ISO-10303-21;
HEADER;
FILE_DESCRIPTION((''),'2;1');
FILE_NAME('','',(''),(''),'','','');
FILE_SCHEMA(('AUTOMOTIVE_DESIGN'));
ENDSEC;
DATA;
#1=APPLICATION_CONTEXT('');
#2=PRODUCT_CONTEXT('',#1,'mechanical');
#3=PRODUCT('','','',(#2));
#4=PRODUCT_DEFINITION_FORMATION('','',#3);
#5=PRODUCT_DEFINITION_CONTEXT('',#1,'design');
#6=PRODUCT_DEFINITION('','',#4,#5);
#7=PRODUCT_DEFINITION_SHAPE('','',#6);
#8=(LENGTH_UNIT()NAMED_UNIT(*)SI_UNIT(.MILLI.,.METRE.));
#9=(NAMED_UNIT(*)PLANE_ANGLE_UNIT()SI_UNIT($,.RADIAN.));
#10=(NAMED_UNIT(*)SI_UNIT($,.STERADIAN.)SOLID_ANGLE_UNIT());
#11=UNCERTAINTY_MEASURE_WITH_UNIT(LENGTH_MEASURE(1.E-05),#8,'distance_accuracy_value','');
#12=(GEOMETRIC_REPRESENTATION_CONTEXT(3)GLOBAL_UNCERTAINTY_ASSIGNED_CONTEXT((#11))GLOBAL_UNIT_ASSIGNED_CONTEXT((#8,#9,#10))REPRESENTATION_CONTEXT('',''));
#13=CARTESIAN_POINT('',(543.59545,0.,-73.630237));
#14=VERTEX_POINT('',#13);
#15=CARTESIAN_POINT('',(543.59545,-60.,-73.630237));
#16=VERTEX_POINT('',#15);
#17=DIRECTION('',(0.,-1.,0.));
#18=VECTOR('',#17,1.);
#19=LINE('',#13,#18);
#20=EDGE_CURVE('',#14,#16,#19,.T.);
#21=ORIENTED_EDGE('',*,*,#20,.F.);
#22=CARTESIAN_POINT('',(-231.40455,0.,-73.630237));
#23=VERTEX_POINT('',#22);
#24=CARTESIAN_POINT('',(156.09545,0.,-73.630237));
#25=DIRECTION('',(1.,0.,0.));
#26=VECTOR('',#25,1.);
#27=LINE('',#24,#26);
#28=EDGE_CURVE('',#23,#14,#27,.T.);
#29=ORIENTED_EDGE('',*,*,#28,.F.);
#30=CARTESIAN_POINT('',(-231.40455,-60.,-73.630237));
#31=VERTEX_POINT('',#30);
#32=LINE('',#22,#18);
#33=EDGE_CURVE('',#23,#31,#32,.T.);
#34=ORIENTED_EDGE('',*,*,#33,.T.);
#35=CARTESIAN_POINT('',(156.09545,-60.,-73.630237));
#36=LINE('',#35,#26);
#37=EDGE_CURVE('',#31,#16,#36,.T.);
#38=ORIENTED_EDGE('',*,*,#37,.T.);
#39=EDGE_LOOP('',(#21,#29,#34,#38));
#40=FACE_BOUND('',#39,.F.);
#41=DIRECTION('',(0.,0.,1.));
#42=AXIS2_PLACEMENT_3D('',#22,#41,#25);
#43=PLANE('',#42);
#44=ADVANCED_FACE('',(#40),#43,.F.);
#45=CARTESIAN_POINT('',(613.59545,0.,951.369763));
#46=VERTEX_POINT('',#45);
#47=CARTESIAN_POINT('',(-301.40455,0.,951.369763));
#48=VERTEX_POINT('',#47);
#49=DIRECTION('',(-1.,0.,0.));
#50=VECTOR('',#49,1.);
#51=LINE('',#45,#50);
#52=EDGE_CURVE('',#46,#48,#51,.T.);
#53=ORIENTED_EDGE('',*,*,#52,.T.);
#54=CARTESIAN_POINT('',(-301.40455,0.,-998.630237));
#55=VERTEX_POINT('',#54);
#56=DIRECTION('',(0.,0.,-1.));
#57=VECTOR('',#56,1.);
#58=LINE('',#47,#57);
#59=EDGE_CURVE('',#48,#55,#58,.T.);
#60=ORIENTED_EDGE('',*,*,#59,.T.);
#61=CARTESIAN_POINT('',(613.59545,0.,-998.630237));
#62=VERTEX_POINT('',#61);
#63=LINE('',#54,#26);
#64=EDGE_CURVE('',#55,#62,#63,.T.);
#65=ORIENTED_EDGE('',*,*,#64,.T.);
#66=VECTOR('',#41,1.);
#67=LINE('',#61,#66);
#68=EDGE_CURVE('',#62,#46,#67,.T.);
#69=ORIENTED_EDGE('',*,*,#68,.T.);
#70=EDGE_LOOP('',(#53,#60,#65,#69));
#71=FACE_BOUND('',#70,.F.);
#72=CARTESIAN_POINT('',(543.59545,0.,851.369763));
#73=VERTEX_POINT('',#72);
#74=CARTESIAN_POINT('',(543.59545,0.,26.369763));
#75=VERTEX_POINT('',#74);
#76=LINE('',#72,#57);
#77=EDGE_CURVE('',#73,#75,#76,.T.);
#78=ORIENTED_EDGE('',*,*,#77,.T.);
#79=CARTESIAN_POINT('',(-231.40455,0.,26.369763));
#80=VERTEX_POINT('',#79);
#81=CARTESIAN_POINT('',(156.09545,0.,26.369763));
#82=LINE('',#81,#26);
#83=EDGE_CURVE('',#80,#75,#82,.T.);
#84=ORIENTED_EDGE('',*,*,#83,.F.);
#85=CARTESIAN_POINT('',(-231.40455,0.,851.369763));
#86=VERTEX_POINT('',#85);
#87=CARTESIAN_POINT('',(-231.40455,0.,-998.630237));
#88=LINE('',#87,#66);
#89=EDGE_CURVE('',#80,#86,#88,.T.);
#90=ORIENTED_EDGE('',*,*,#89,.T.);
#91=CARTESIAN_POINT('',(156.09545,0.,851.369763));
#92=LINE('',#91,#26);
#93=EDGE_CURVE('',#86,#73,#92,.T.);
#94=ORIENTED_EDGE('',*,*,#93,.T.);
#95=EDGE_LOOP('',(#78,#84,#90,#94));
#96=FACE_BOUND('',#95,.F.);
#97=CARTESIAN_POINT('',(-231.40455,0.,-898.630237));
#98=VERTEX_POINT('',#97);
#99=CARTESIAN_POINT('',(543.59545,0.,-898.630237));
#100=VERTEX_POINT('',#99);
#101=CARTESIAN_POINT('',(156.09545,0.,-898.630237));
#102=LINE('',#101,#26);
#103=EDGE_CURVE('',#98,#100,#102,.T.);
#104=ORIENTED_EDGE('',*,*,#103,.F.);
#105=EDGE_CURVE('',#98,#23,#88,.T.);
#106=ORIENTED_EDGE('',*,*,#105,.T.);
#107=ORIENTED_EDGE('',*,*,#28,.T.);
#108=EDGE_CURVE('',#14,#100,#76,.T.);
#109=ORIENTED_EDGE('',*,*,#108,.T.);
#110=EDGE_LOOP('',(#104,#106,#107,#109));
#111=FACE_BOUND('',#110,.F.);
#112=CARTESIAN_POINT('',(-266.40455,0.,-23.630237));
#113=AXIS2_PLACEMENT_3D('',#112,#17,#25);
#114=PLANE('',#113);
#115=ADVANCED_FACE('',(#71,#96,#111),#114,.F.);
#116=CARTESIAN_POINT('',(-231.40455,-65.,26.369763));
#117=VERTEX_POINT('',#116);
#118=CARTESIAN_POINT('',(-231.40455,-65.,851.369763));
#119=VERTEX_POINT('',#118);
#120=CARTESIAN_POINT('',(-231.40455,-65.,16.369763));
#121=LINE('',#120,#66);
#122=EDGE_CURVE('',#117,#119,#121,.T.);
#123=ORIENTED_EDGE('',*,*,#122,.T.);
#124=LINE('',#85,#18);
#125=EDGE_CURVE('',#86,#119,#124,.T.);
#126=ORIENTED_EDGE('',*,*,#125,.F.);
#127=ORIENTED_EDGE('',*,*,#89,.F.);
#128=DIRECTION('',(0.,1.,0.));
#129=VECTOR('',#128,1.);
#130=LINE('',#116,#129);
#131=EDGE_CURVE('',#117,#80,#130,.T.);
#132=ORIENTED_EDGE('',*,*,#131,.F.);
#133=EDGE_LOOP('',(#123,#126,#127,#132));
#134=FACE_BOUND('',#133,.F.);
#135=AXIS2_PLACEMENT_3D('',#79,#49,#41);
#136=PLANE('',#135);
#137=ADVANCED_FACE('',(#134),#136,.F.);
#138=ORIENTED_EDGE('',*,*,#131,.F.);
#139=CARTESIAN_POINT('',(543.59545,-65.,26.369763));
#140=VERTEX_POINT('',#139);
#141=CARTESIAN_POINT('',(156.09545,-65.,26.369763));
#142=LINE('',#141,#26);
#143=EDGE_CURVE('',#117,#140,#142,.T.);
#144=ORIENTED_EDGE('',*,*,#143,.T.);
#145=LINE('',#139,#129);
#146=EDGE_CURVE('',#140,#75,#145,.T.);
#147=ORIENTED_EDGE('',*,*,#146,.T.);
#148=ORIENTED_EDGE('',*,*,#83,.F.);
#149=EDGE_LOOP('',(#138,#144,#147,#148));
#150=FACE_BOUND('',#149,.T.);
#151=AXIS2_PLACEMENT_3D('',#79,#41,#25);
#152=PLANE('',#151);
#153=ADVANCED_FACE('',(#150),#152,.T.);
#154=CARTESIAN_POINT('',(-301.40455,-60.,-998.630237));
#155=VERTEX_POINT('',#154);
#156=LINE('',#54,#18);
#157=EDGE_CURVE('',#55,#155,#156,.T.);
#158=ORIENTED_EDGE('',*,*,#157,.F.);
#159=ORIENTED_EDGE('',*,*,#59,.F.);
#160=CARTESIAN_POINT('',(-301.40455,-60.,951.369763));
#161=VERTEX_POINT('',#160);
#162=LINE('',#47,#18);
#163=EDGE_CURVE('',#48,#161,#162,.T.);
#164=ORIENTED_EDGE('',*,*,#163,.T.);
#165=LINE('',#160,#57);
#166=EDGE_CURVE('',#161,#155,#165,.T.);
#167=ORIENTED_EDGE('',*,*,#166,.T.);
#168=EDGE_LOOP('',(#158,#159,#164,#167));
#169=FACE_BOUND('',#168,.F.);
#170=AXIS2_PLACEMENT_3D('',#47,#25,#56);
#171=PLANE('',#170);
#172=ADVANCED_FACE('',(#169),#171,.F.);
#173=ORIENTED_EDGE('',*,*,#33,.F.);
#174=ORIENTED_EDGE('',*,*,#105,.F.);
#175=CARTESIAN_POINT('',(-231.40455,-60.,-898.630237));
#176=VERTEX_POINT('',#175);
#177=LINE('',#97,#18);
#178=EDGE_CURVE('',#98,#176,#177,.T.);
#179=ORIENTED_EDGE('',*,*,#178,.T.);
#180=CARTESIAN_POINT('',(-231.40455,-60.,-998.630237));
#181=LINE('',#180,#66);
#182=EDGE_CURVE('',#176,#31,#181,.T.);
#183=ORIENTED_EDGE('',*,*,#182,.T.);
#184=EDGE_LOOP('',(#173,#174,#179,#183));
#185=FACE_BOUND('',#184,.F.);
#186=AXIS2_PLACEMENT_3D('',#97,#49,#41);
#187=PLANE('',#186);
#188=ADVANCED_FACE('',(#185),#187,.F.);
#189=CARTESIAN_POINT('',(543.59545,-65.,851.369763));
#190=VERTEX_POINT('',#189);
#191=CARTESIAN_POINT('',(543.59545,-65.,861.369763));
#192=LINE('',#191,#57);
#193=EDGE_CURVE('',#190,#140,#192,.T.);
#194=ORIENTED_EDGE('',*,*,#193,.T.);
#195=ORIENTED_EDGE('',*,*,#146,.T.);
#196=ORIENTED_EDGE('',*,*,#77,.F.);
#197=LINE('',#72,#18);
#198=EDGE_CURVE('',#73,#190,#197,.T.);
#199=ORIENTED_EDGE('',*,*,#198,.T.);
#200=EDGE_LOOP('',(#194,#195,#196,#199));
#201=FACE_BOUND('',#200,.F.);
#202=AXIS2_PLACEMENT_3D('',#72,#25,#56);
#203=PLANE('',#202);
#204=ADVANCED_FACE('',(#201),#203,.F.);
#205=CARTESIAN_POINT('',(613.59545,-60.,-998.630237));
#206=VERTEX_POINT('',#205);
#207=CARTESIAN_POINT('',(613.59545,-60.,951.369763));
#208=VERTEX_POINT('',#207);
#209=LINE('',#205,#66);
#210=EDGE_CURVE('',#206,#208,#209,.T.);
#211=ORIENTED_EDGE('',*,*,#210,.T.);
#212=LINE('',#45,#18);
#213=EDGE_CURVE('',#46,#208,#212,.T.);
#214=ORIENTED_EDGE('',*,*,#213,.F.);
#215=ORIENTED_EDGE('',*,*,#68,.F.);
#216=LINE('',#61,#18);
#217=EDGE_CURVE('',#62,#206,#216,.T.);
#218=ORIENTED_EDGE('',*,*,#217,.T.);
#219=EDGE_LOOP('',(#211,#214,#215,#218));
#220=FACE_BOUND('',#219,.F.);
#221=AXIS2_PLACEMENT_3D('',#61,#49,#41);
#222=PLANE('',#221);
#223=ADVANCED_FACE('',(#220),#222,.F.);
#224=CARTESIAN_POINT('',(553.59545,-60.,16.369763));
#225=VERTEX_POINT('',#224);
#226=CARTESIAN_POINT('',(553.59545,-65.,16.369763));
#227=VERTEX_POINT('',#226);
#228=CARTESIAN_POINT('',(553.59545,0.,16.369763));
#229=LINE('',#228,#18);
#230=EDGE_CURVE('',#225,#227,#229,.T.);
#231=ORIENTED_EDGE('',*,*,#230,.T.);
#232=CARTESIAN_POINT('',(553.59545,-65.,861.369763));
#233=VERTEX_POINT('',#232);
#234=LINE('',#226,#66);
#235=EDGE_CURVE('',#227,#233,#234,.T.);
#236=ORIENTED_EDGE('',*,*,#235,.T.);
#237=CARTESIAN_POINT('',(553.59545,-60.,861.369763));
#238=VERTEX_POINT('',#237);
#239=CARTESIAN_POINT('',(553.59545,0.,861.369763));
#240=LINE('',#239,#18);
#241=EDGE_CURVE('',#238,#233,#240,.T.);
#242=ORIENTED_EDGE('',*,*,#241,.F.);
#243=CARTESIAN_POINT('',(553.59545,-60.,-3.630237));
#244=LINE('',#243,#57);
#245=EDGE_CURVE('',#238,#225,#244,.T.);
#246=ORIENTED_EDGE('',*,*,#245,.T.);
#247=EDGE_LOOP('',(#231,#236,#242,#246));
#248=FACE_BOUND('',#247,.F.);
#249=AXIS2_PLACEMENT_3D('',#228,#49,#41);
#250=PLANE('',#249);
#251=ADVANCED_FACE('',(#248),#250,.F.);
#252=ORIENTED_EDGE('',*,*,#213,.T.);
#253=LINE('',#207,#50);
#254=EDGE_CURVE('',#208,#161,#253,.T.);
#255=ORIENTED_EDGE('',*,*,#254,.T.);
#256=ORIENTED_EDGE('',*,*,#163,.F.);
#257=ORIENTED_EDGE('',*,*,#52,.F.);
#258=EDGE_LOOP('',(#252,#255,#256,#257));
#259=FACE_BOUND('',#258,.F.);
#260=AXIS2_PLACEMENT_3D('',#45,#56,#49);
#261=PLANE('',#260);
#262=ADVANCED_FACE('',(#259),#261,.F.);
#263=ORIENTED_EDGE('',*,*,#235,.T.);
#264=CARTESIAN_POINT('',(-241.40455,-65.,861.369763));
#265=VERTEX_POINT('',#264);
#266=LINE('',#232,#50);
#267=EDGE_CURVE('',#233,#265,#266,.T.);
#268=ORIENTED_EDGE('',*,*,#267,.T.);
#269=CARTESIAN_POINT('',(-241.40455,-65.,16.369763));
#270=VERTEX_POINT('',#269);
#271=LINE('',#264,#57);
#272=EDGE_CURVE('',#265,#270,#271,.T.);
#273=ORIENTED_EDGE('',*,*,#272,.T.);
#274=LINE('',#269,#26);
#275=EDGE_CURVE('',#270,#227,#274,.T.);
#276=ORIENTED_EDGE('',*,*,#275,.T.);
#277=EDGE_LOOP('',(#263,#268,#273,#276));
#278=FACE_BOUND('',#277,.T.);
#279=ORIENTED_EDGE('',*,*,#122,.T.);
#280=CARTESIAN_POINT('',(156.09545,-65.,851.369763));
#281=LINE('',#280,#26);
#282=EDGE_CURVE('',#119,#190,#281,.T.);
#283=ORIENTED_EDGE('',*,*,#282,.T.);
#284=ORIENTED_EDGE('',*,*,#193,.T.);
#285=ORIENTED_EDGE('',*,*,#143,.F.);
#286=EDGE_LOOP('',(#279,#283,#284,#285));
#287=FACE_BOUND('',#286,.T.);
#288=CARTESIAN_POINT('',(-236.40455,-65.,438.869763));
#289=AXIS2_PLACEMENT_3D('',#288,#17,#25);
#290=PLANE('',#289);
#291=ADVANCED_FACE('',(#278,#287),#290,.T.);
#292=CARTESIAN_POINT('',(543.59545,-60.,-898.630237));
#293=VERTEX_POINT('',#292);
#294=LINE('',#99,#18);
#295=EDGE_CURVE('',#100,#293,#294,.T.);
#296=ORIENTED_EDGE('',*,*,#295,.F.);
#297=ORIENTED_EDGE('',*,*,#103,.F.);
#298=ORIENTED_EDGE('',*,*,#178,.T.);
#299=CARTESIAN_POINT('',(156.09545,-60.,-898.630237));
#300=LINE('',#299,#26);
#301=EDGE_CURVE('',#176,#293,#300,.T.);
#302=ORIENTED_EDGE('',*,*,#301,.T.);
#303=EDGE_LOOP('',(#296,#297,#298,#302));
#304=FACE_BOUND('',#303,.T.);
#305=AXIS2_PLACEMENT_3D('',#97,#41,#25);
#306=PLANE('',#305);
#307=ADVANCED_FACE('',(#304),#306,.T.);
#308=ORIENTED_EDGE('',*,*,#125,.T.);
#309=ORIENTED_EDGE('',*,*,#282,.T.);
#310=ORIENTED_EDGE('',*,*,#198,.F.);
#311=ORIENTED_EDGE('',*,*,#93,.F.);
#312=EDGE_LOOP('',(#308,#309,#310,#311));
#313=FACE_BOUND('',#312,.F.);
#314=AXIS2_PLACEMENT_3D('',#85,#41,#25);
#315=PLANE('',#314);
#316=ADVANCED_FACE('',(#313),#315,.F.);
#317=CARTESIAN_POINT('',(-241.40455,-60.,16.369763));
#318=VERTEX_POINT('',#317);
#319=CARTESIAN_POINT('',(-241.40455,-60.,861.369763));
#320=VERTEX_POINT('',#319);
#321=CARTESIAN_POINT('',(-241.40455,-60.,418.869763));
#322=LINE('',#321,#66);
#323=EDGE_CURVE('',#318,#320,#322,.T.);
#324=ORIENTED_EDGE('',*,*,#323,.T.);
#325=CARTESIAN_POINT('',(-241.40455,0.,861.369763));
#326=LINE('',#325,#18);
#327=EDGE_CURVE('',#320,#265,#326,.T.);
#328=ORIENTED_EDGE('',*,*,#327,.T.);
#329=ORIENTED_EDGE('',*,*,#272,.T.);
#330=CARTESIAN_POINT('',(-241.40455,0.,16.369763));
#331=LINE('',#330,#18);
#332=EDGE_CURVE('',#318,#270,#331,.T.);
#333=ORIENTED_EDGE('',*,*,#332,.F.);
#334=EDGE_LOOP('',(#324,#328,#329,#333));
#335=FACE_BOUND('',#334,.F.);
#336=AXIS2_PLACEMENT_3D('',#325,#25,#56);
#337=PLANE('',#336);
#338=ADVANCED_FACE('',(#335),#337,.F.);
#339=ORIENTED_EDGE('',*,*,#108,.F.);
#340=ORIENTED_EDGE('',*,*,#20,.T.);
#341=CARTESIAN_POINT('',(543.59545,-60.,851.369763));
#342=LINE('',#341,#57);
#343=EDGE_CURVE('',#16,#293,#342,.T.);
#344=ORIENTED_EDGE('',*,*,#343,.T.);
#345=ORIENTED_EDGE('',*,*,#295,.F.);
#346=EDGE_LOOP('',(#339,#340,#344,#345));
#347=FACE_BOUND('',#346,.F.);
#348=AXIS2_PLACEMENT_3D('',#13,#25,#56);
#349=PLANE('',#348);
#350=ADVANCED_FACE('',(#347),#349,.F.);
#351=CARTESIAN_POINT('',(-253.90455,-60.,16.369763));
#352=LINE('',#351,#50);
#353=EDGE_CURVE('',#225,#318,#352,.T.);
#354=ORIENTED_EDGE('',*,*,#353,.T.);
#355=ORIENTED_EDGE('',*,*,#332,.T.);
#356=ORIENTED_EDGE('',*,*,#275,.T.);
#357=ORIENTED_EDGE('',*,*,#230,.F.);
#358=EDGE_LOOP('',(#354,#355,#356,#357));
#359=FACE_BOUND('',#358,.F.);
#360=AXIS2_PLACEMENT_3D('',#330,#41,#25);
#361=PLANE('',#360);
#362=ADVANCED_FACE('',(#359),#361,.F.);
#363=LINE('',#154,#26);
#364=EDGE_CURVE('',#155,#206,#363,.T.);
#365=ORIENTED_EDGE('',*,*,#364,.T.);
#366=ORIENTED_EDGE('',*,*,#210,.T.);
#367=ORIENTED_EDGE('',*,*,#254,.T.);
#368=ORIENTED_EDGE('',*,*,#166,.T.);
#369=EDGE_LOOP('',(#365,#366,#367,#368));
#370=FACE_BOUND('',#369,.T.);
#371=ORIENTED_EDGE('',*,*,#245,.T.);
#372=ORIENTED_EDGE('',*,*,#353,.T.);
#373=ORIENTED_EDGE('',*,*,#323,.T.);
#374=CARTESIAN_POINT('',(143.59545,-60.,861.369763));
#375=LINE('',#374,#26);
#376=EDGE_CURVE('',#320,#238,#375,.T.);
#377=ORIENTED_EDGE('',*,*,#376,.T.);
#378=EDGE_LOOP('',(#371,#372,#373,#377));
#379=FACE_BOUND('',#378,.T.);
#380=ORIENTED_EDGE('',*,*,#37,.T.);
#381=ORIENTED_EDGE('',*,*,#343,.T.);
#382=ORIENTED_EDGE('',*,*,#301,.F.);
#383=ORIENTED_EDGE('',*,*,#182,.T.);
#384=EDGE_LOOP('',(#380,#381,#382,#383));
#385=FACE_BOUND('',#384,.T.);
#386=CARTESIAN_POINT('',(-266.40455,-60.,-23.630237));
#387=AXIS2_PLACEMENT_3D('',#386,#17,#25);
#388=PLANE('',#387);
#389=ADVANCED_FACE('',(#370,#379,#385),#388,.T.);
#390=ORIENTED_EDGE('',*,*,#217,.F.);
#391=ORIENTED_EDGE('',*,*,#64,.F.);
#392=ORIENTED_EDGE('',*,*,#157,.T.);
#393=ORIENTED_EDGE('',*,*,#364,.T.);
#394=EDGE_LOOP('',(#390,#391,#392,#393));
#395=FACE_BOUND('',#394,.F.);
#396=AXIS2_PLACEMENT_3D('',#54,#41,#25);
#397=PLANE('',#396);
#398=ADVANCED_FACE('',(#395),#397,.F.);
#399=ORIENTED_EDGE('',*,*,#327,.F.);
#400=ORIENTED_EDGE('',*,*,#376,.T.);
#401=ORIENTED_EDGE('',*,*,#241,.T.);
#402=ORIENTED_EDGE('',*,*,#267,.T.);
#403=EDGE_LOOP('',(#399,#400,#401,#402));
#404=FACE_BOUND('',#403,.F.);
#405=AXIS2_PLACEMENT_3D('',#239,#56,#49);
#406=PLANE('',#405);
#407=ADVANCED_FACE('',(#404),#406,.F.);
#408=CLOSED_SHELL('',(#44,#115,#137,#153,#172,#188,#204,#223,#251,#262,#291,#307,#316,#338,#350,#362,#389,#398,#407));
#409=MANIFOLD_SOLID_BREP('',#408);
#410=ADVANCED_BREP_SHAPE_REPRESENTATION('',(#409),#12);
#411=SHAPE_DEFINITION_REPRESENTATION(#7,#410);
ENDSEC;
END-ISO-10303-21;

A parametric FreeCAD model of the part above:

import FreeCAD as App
import Part
import Sketcher
Q = App.Units.Quantity


def add_polygon(sketch, points):
    """Adds a closed chain of lines whose ends are joined by coincident constraints."""
    first, n = sketch.GeometryCount, len(points)
    for a, b in zip(points, points[1:] + points[:1]):
        sketch.addGeometry(Part.LineSegment(App.Vector(*a, 0), App.Vector(*b, 0)), False)
    for i in range(n):
        sketch.addConstraint(Sketcher.Constraint("Coincident", first + i, 2, first + (i + 1) % n, 1))

doc = App.newDocument("Part")
params = doc.addObject("Spreadsheet::Sheet", "Params")
for row, (alias, value) in enumerate([
    ("sketch1_width", "915 mm"),
    ("sketch1_width2", "775 mm"),
    ("sketch1_height", "1950 mm"),
    ("sketch1_height2", "825 mm"),
    ("pad1_length", "60 mm"),
    ("sketch2_width", "795 mm"),
    ("sketch2_width2", "775 mm"),
    ("sketch2_height", "845 mm"),
    ("sketch2_height2", "825 mm"),
    ("pad2_length", "65 mm"),
], start=1):
    params.set(f"A{row}", alias)
    params.set(f"B{row}", "=" + value)
    params.setAlias(f"B{row}", alias)

body = doc.addObject("PartDesign::Body", "Body")

# Sketch on XZ plane
sketch1 = doc.addObject("Sketcher::SketchObject", "Sketch")
body.addObject(sketch1)
sketch1.AttachmentSupport = (doc.XZ_Plane, [""])
sketch1.MapMode = "FlatFace"
add_polygon(sketch1, [(-301.40455, 951.369763), (-301.40455, -998.630237), (613.59545, -998.630237), (613.59545, 951.369763)])  # lines 0-3
add_polygon(sketch1, [(-231.40455, -898.630237), (-231.40455, -73.630237), (543.59545, -73.630237), (543.59545, -898.630237)])  # lines 4-7
add_polygon(sketch1, [(-231.40455, 26.369763), (-231.40455, 851.369763), (543.59545, 851.369763), (543.59545, 26.369763)])  # lines 8-11
sketch1.addConstraint([
    Sketcher.Constraint("Vertical", 0),
    Sketcher.Constraint("Horizontal", 1),
    Sketcher.Constraint("Vertical", 2),
    Sketcher.Constraint("Horizontal", 3),
    Sketcher.Constraint("Vertical", 4),
    Sketcher.Constraint("Horizontal", 5),
    Sketcher.Constraint("Vertical", 6),
    Sketcher.Constraint("Horizontal", 7),
    Sketcher.Constraint("Vertical", 8),
    Sketcher.Constraint("Horizontal", 9),
    Sketcher.Constraint("Vertical", 10),
    Sketcher.Constraint("Horizontal", 11),
    Sketcher.Constraint("Vertical", 7, 2, 8, 2),
    Sketcher.Constraint("Vertical", 6, 2, 9, 2),
    Sketcher.Constraint("Equal", 6, 8),
    Sketcher.Constraint("DistanceX", 1, 1, 1, 2, Q("915 mm")),
    Sketcher.Constraint("DistanceX", 5, 1, 5, 2, Q("775 mm")),
    Sketcher.Constraint("DistanceY", 0, 2, 0, 1, Q("1950 mm")),
    Sketcher.Constraint("DistanceY", 4, 1, 4, 2, Q("825 mm")),
    Sketcher.Constraint("DistanceX", 0, 2, 4, 2, Q("70 mm")),
    Sketcher.Constraint("DistanceY", 0, 2, 4, 2, Q("925 mm")),
    Sketcher.Constraint("DistanceY", 8, 2, 3, 2, Q("100 mm")),
    Sketcher.Constraint("DistanceX", 0, 2, -1, 1, Q("301.40455 mm")),
    Sketcher.Constraint("DistanceY", 0, 2, -1, 1, Q("998.630237 mm")),
])
sketch1.setExpression("Constraints[27]", "Params.sketch1_width")
sketch1.setExpression("Constraints[28]", "Params.sketch1_width2")
sketch1.setExpression("Constraints[29]", "Params.sketch1_height")
sketch1.setExpression("Constraints[30]", "Params.sketch1_height2")
pad1 = doc.addObject("PartDesign::Pad", "Pad")
body.addObject(pad1)
pad1.Profile = sketch1
pad1.setExpression("Length", "Params.pad1_length")

# Sketch on XZ plane
sketch2 = doc.addObject("Sketcher::SketchObject", "Sketch001")
body.addObject(sketch2)
sketch2.AttachmentSupport = (doc.XZ_Plane, [""])
sketch2.MapMode = "FlatFace"
add_polygon(sketch2, [(-241.40455, 16.369763), (553.59545, 16.369763), (553.59545, 861.369763), (-241.40455, 861.369763)])  # lines 0-3
add_polygon(sketch2, [(543.59545, 851.369763), (543.59545, 26.369763), (-231.40455, 26.369763), (-231.40455, 851.369763)])  # lines 4-7
sketch2.addConstraint([
    Sketcher.Constraint("Horizontal", 0),
    Sketcher.Constraint("Vertical", 1),
    Sketcher.Constraint("Horizontal", 2),
    Sketcher.Constraint("Vertical", 3),
    Sketcher.Constraint("Vertical", 4),
    Sketcher.Constraint("Horizontal", 5),
    Sketcher.Constraint("Vertical", 6),
    Sketcher.Constraint("Horizontal", 7),
    Sketcher.Constraint("DistanceX", 0, 1, 0, 2, Q("795 mm")),
    Sketcher.Constraint("DistanceX", 5, 2, 5, 1, Q("775 mm")),
    Sketcher.Constraint("DistanceY", 1, 1, 1, 2, Q("845 mm")),
    Sketcher.Constraint("DistanceY", 4, 2, 4, 1, Q("825 mm")),
    Sketcher.Constraint("DistanceX", 4, 2, 0, 2, Q("10 mm")),
    Sketcher.Constraint("DistanceY", 0, 2, 4, 2, Q("10 mm")),
    Sketcher.Constraint("DistanceX", -1, 1, 0, 2, Q("553.59545 mm")),
    Sketcher.Constraint("DistanceY", -1, 1, 0, 2, Q("16.369763 mm")),
])
sketch2.setExpression("Constraints[16]", "Params.sketch2_width")
sketch2.setExpression("Constraints[17]", "Params.sketch2_width2")
sketch2.setExpression("Constraints[18]", "Params.sketch2_height")
sketch2.setExpression("Constraints[19]", "Params.sketch2_height2")
pad2 = doc.addObject("PartDesign::Pad", "Pad001")
body.addObject(pad2)
pad2.Profile = sketch2
pad2.setExpression("Length", "Params.pad2_length")

doc.recompute()
